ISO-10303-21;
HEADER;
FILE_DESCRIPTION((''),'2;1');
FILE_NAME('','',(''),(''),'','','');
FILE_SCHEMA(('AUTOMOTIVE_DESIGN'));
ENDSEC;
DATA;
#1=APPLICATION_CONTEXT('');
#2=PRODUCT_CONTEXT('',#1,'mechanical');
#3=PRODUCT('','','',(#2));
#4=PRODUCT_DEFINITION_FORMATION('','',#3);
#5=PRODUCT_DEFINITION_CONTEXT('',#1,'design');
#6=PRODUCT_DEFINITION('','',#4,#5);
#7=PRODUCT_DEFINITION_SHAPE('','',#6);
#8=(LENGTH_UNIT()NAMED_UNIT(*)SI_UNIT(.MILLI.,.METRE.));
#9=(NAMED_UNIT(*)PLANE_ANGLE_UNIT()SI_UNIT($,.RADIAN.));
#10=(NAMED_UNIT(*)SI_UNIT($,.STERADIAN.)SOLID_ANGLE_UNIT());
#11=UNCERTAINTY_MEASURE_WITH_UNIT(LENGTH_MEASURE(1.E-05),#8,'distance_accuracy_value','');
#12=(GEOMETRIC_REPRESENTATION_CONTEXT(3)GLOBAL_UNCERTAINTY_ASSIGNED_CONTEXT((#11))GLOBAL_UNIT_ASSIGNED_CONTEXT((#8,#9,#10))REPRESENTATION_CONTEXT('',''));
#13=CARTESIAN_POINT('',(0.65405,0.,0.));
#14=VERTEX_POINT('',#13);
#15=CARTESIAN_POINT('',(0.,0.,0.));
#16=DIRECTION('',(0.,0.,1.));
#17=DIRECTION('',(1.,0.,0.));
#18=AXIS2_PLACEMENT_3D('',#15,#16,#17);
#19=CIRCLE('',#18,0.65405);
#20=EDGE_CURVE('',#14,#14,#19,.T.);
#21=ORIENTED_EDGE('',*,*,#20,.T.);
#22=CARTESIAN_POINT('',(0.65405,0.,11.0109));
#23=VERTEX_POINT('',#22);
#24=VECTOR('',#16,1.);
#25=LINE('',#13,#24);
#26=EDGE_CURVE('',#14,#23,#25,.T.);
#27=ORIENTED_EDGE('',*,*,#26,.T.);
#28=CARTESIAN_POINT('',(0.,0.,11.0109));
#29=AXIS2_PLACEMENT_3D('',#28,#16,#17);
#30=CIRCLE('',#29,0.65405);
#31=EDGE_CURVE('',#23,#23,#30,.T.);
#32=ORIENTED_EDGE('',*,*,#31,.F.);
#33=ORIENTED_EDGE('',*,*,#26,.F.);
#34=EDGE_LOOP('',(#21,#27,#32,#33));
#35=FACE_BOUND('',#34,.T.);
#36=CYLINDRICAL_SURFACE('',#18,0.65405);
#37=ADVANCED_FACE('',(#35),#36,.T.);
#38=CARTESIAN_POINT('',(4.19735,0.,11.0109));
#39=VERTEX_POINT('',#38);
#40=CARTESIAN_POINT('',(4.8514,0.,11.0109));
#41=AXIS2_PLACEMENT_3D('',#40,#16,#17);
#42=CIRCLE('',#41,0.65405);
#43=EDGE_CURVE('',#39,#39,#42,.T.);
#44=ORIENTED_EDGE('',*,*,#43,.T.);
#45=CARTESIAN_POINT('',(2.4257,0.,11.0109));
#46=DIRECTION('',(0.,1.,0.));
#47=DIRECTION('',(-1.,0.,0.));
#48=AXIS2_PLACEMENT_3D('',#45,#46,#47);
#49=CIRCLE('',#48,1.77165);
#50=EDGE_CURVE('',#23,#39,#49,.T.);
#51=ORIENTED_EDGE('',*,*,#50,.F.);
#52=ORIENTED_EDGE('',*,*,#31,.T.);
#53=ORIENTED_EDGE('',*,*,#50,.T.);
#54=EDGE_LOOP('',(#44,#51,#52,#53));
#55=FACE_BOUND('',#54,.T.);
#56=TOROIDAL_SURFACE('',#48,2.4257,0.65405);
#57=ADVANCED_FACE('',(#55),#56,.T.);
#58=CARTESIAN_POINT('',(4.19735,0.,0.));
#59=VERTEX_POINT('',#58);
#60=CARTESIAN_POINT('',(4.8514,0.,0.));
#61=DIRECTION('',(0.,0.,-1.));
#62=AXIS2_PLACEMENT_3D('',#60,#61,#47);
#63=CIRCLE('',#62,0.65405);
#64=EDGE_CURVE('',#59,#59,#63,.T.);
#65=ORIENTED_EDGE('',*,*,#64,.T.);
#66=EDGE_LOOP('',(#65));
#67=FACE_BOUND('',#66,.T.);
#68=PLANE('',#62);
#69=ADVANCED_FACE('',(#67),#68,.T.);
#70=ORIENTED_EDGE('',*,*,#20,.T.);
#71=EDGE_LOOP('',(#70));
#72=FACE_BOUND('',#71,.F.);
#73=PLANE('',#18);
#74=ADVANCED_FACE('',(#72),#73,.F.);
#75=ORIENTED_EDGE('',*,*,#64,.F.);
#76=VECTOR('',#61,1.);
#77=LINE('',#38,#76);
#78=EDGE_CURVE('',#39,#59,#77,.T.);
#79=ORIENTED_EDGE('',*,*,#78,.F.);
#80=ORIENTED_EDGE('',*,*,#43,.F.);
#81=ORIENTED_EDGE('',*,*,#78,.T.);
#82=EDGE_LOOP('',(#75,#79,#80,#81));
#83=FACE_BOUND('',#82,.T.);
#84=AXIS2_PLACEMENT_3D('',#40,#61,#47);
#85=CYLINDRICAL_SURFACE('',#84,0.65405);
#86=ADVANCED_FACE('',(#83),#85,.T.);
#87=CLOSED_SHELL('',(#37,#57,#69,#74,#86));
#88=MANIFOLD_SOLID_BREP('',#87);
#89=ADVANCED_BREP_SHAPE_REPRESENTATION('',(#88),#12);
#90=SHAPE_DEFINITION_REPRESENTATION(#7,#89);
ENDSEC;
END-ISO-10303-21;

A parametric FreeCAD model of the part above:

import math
import FreeCAD as App
import Part
import Sketcher
Q = App.Units.Quantity

doc = App.newDocument("Part")
body = doc.addObject("PartDesign::Body", "Body")

# Sketch on XY plane
sketch1 = body.newObject("Sketcher::SketchObject", "Sketch")
sketch1.AttachmentSupport = (doc.getObject("XY_Plane"), [""])
sketch1.MapMode = "FlatFace"
sketch1.addGeometry(Part.Circle(App.Vector(0, 0, 0), App.Vector(0, 0, 1), 0.65405), False)
sketch1.addConstraint(Sketcher.Constraint("Coincident", 0, 3, -1, 1))
sketch1.addConstraint(Sketcher.Constraint("Diameter", 0, Q("0.0515 in")))

# Sketch on XZ plane
sketch2 = body.newObject("Sketcher::SketchObject", "Sketch001")
sketch2.AttachmentSupport = (doc.getObject("XZ_Plane"), [""])
sketch2.MapMode = "FlatFace"
sketch2.addGeometry(Part.LineSegment(App.Vector(0, 0, 0), App.Vector(0, 11.0109, 0)), False)
sketch2.addGeometry(Part.ArcOfCircle(Part.Circle(App.Vector(2.4257, 11.0109, 0), App.Vector(0, 0, 1), 2.4257), math.radians(0), math.radians(180)), False)
sketch2.addGeometry(Part.LineSegment(App.Vector(4.8514, 11.0109, 0), App.Vector(4.8514, 0, 0)), False)
sketch2.addConstraint(Sketcher.Constraint("Tangent", 0, 2, 1, 2))
sketch2.addConstraint(Sketcher.Constraint("Tangent", 1, 1, 2, 1))
sketch2.addConstraint(Sketcher.Constraint("Vertical", 0))
sketch2.addConstraint(Sketcher.Constraint("Vertical", 2))
sketch2.addConstraint(Sketcher.Constraint("Coincident", 0, 1, -1, 1))
sketch2.addConstraint(Sketcher.Constraint("PointOnObject", 2, 2, -1))
sketch2.addConstraint(Sketcher.Constraint("Radius", 1, Q("0.0955 in")))
sketch2.addConstraint(Sketcher.Constraint("DistanceY", 0, 1, 0, 2, Q("0.4335 in")))
doc.recompute()

additivepipe = body.newObject("PartDesign::AdditivePipe", "AdditivePipe")
additivepipe.Profile = sketch1
additivepipe.Spine = (sketch2, ["Edge1", "Edge2", "Edge3"])

doc.recompute()
